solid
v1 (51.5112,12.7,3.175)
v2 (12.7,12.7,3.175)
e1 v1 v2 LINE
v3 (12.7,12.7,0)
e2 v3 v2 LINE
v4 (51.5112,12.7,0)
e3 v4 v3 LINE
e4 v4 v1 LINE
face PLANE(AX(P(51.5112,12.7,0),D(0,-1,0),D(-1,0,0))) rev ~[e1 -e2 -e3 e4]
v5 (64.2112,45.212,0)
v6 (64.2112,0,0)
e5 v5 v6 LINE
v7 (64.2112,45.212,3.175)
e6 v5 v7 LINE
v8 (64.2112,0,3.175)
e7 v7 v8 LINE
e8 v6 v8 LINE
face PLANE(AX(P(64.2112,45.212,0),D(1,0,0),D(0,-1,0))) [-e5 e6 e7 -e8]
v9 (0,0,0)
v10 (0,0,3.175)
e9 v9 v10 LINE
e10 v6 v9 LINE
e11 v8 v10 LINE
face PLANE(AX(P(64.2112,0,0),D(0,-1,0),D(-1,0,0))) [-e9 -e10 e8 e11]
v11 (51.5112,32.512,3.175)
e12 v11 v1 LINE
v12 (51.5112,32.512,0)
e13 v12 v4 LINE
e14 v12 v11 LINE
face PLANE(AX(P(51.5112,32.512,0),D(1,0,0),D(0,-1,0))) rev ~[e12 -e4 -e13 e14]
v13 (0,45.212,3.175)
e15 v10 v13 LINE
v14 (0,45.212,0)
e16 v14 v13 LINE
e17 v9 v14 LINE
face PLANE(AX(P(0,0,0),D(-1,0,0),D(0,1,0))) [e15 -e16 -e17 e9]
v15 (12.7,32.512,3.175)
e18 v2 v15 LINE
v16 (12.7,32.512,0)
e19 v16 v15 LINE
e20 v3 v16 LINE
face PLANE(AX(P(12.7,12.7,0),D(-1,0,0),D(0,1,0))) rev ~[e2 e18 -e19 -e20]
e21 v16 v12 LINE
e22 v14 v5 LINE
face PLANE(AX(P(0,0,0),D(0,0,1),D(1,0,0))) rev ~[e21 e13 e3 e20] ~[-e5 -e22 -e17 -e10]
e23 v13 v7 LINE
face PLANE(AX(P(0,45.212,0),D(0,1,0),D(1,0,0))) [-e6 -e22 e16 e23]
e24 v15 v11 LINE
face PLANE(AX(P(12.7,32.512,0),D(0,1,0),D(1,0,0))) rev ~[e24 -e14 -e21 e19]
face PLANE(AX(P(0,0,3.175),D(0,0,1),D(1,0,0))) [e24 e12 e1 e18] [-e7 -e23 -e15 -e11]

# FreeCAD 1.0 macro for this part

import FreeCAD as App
import Part
import Sketcher
from FreeCAD import Vector
Q = App.Units.Quantity


def add_polygon(sketch, points):
    """Adds a closed chain of lines whose ends are joined by coincident constraints."""
    first, n = sketch.GeometryCount, len(points)
    for a, b in zip(points, points[1:] + points[:1]):
        sketch.addGeometry(Part.LineSegment(App.Vector(*a, 0), App.Vector(*b, 0)), False)
    for i in range(n):
        sketch.addConstraint(Sketcher.Constraint("Coincident", first + i, 2, first + (i + 1) % n, 1))

doc = App.newDocument("Part")
body = doc.addObject("PartDesign::Body", "Body")

# Sketch on XY plane
sketch1 = doc.addObject("Sketcher::SketchObject", "Sketch")
body.addObject(sketch1)
sketch1.AttachmentSupport = (doc.XY_Plane, [""])
sketch1.MapMode = "FlatFace"
add_polygon(sketch1, [(0, 45), (0, 0), (64, 0), (64, 45)])  # lines 0-3
add_polygon(sketch1, [(13, 13), (13, 33), (52, 33), (52, 13)])  # lines 4-7
sketch1.addConstraint([
    Sketcher.Constraint("Vertical", 0),
    Sketcher.Constraint("Horizontal", 1),
    Sketcher.Constraint("Vertical", 2),
    Sketcher.Constraint("Horizontal", 3),
    Sketcher.Constraint("Vertical", 4),
    Sketcher.Constraint("Horizontal", 5),
    Sketcher.Constraint("Vertical", 6),
    Sketcher.Constraint("Horizontal", 7),
    Sketcher.Constraint("Coincident", 0, 2, -1, 1),
    Sketcher.Constraint("DistanceY", 0, 2, 0, 1, Q("1.78 in")),
    Sketcher.Constraint("DistanceY", 4, 1, 4, 2, Q("0.78 in")),
    Sketcher.Constraint("DistanceX", 1, 1, 1, 2, Q("2.528 in")),
    Sketcher.Constraint("DistanceX", 5, 1, 5, 2, Q("1.528 in")),
    Sketcher.Constraint("DistanceX", -1, 1, 4, 2, Q("0.5 in")),
    Sketcher.Constraint("DistanceY", -1, 1, 6, 2, Q("0.5 in")),
])
pad1 = doc.addObject("PartDesign::Pad", "Pad")
body.addObject(pad1)
pad1.Profile = sketch1
pad1.Length = Q("0.125 in")

doc.recompute()
